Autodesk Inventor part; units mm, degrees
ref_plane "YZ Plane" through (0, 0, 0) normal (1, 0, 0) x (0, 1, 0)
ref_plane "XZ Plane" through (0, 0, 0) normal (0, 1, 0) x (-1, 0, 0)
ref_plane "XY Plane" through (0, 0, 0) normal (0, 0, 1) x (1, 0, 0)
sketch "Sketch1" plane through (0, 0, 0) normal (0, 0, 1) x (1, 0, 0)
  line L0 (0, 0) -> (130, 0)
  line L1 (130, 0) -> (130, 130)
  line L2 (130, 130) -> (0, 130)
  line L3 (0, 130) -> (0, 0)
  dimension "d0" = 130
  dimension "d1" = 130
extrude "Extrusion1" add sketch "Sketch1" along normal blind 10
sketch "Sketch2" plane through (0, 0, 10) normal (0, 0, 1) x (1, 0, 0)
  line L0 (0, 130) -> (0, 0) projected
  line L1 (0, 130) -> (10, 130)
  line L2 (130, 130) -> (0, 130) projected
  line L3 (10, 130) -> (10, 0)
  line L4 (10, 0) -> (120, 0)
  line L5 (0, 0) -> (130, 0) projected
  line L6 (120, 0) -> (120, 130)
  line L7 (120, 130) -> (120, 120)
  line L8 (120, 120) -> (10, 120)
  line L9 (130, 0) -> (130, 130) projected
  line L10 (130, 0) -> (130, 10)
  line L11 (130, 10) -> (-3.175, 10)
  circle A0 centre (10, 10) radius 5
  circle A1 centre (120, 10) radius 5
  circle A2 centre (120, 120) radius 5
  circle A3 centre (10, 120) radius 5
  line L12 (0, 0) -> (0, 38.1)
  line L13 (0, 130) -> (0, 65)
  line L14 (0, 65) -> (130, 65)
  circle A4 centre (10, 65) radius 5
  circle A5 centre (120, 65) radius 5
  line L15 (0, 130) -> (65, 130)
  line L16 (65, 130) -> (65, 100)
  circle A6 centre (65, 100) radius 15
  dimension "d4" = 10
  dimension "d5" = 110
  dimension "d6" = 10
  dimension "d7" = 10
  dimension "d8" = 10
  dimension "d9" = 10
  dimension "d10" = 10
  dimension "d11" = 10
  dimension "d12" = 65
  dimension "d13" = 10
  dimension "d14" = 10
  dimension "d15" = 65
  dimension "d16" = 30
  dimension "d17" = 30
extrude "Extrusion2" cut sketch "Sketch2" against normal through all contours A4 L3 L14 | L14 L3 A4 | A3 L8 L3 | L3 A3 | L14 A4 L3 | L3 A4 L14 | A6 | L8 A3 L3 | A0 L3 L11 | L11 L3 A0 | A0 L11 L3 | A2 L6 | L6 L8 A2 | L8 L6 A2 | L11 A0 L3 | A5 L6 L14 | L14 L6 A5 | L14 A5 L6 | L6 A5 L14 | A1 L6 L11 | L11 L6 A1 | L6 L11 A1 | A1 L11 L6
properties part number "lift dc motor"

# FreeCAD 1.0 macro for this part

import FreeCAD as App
import Part
import Sketcher
Q = App.Units.Quantity

doc = App.newDocument("Part")
body = doc.addObject("PartDesign::Body", "Body")

sketch1 = body.newObject("Sketcher::SketchObject", "Sketch")
sketch1.AttachmentSupport = (doc.getObject("XY_Plane"), [""])
sketch1.MapMode = "FlatFace"
sketch1.addGeometry(Part.LineSegment(App.Vector(0, 130, 0), App.Vector(0, 0, 0)), False)
sketch1.addGeometry(Part.LineSegment(App.Vector(0, 0, 0), App.Vector(130, 0, 0)), False)
sketch1.addGeometry(Part.LineSegment(App.Vector(130, 0, 0), App.Vector(130, 130, 0)), False)
sketch1.addGeometry(Part.LineSegment(App.Vector(130, 130, 0), App.Vector(0, 130, 0)), False)
sketch1.addConstraint(Sketcher.Constraint("Coincident", 0, 2, 1, 1))
sketch1.addConstraint(Sketcher.Constraint("Coincident", 1, 2, 2, 1))
sketch1.addConstraint(Sketcher.Constraint("Coincident", 2, 2, 3, 1))
sketch1.addConstraint(Sketcher.Constraint("Coincident", 3, 2, 0, 1))
sketch1.addConstraint(Sketcher.Constraint("Vertical", 0))
sketch1.addConstraint(Sketcher.Constraint("Horizontal", 1))
sketch1.addConstraint(Sketcher.Constraint("Vertical", 2))
sketch1.addConstraint(Sketcher.Constraint("Horizontal", 3))
sketch1.addConstraint(Sketcher.Constraint("Coincident", 0, 2, -1, 1))
sketch1.addConstraint(Sketcher.Constraint("Equal", 3, 0))
sketch1.addConstraint(Sketcher.Constraint("DistanceX", 1, 1, 1, 2, Q("130 mm")))
pad1 = body.newObject("PartDesign::Pad", "Pad")
pad1.Profile = sketch1
pad1.Length = 10

sketch2 = body.newObject("Sketcher::SketchObject", "Sketch001")
sketch2.AttachmentSupport = (doc.getObject("XY_Plane"), [""])
sketch2.MapMode = "FlatFace"
sketch2.AttachmentOffset = App.Placement(App.Vector(0, 0, 10), App.Rotation())
sketch2.addGeometry(Part.Circle(App.Vector(10, 65, 0), App.Vector(0, 0, 1), 5), False)
sketch2.addGeometry(Part.Circle(App.Vector(10, 120, 0), App.Vector(0, 0, 1), 5), False)
sketch2.addGeometry(Part.Circle(App.Vector(65, 100, 0), App.Vector(0, 0, 1), 15), False)
sketch2.addGeometry(Part.Circle(App.Vector(10, 10, 0), App.Vector(0, 0, 1), 5), False)
sketch2.addGeometry(Part.Circle(App.Vector(120, 120, 0), App.Vector(0, 0, 1), 5), False)
sketch2.addGeometry(Part.Circle(App.Vector(120, 65, 0), App.Vector(0, 0, 1), 5), False)
sketch2.addGeometry(Part.Circle(App.Vector(120, 10, 0), App.Vector(0, 0, 1), 5), False)
sketch2.addConstraint(Sketcher.Constraint("Equal", 0, 1))
sketch2.addConstraint(Sketcher.Constraint("Equal", 1, 3))
sketch2.addConstraint(Sketcher.Constraint("Equal", 3, 4))
sketch2.addConstraint(Sketcher.Constraint("Equal", 4, 5))
sketch2.addConstraint(Sketcher.Constraint("Equal", 5, 6))
sketch2.addConstraint(Sketcher.Constraint("Horizontal", 1, 3, 4, 3))
sketch2.addConstraint(Sketcher.Constraint("Horizontal", 0, 3, 5, 3))
sketch2.addConstraint(Sketcher.Constraint("Horizontal", 3, 3, 6, 3))
sketch2.addConstraint(Sketcher.Constraint("Vertical", 0, 3, 1, 3))
sketch2.addConstraint(Sketcher.Constraint("Vertical", 1, 3, 3, 3))
sketch2.addConstraint(Sketcher.Constraint("Vertical", 4, 3, 5, 3))
sketch2.addConstraint(Sketcher.Constraint("Vertical", 5, 3, 6, 3))
sketch2.addConstraint(Sketcher.Constraint("Diameter", 0, Q("10 mm")))
sketch2.addConstraint(Sketcher.Constraint("Diameter", 2, Q("30 mm")))
sketch2.addConstraint(Sketcher.Constraint("DistanceX", -1, 1, 0, 3, Q("10 mm")))
sketch2.addConstraint(Sketcher.Constraint("DistanceY", -1, 1, 0, 3, Q("65 mm")))
sketch2.addConstraint(Sketcher.Constraint("DistanceX", -1, 1, 2, 3, Q("65 mm")))
sketch2.addConstraint(Sketcher.Constraint("DistanceY", -1, 1, 3, 3, Q("10 mm")))
sketch2.addConstraint(Sketcher.Constraint("DistanceY", 3, 3, 1, 3, Q("110 mm")))
sketch2.addConstraint(Sketcher.Constraint("DistanceX", 1, 3, 4, 3, Q("110 mm")))
sketch2.addConstraint(Sketcher.Constraint("DistanceY", -1, 1, 2, 3, Q("100 mm")))
pocket1 = body.newObject("PartDesign::Pocket", "Pocket")
pocket1.Profile = sketch2
pocket1.Type = "ThroughAll"

doc.recompute()
